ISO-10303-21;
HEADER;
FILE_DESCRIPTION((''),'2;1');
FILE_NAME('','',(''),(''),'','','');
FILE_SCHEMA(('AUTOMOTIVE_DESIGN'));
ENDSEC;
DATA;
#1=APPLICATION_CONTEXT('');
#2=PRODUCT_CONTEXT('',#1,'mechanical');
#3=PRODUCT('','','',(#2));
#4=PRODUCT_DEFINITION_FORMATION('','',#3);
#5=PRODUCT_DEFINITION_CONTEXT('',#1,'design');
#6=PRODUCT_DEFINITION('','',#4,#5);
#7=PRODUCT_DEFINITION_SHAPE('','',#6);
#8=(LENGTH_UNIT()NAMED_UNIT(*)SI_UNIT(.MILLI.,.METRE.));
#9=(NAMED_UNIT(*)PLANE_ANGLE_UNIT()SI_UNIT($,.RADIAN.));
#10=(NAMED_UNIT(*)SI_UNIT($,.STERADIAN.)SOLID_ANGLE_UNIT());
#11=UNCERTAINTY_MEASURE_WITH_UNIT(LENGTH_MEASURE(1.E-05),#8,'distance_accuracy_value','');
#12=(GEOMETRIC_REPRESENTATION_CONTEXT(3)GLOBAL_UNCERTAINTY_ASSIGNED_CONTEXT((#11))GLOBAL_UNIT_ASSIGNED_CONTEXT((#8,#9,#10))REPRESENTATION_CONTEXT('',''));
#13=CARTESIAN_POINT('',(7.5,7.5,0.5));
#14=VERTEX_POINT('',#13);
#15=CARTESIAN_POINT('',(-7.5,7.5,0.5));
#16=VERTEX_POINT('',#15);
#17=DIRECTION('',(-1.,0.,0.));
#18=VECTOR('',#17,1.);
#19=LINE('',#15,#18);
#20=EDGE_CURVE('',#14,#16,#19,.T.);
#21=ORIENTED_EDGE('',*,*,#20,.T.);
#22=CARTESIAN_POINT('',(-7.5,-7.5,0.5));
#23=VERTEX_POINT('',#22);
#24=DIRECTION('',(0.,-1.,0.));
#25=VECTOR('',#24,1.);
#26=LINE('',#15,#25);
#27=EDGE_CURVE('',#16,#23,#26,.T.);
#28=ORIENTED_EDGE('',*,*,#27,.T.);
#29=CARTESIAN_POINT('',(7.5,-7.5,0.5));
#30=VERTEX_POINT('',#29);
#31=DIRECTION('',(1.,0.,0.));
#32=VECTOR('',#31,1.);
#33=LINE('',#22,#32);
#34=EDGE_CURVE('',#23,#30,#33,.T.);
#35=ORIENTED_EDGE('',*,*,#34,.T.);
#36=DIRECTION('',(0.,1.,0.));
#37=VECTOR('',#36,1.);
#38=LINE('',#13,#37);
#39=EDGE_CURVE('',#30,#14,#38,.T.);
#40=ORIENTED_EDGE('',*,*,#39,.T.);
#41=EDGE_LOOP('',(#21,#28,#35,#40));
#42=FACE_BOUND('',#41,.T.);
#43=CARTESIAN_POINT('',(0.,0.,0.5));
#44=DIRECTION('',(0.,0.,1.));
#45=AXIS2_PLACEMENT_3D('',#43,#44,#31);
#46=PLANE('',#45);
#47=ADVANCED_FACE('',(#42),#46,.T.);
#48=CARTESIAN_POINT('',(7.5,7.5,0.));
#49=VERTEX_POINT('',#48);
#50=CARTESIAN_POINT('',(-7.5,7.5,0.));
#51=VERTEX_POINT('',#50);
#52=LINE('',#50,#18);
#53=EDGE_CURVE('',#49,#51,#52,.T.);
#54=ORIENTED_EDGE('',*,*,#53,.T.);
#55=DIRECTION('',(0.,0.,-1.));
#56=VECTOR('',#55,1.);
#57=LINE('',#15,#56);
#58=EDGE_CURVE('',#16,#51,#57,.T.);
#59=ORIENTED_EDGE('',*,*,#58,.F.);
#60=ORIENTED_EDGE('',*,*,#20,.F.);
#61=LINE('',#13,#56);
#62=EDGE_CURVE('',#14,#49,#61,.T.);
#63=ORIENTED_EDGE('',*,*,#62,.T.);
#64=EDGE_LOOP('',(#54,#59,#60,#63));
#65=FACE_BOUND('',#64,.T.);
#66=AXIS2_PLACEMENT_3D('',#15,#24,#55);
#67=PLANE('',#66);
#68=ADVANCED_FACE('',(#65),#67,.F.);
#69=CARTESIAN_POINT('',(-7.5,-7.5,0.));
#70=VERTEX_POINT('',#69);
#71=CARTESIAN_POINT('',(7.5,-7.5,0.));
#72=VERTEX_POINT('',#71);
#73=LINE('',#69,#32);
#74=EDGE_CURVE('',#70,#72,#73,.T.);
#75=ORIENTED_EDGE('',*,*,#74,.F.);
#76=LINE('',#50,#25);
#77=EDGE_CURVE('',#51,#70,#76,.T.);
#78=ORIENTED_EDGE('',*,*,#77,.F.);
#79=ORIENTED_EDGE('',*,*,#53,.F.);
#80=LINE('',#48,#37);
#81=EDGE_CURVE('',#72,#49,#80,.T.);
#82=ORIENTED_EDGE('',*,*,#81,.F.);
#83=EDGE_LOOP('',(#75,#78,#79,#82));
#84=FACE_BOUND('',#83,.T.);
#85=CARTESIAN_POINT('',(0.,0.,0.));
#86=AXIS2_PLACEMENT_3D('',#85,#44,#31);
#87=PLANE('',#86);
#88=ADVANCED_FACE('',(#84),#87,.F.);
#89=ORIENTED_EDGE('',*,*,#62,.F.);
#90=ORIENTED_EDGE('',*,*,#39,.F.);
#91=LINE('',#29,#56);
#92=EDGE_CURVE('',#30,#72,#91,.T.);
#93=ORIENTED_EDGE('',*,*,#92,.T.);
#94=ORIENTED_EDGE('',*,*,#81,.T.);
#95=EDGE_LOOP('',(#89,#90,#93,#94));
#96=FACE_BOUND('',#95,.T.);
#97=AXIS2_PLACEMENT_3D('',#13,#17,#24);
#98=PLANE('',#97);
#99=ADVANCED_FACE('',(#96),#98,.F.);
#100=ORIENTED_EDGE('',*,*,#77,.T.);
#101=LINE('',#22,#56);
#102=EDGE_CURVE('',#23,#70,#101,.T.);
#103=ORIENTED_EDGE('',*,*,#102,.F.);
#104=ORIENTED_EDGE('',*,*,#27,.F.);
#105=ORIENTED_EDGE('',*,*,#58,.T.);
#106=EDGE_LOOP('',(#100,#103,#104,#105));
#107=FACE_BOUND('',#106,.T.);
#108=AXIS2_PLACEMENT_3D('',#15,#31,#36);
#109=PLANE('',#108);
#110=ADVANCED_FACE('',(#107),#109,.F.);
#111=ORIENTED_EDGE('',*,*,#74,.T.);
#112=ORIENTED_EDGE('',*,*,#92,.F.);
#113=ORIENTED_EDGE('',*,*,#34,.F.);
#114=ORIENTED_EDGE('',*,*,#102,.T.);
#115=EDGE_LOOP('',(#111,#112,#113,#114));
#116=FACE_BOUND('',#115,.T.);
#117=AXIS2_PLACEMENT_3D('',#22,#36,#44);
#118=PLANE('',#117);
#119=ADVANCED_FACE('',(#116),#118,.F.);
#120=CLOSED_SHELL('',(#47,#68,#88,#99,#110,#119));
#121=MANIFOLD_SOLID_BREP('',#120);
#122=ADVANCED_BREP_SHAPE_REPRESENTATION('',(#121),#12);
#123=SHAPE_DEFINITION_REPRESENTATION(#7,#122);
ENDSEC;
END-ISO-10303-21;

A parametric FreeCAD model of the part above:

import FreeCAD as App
import Part
import Sketcher

V = App.Vector


def add_polygon(sketch, points):
    """Adds a closed chain of lines whose ends are joined by coincident constraints."""
    first, n = sketch.GeometryCount, len(points)
    for a, b in zip(points, points[1:] + points[:1]):
        sketch.addGeometry(Part.LineSegment(App.Vector(*a, 0), App.Vector(*b, 0)), False)
    for i in range(n):
        sketch.addConstraint(Sketcher.Constraint("Coincident", first + i, 2, first + (i + 1) % n, 1))

doc = App.newDocument("Part")
params = doc.addObject("Spreadsheet::Sheet", "Params")
for row, (alias, value) in enumerate([
    ("sketch1_width", "15 mm"),
    ("pad1_length", "0.5 mm"),
], start=1):
    params.set(f"A{row}", alias)
    params.set(f"B{row}", "=" + value)
    params.setAlias(f"B{row}", alias)

body = doc.addObject("PartDesign::Body", "Body")

# Sketch on XY plane
sketch1 = body.newObject("Sketcher::SketchObject", "Sketch")
sketch1.AttachmentSupport = (doc.getObject("XY_Plane"), [""])
sketch1.MapMode = "FlatFace"
add_polygon(sketch1, [(-8, 8), (-8, -8), (8, -8), (8, 8)])  # lines 0-3
sketch1.addConstraint([
    Sketcher.Constraint("Vertical", 0),
    Sketcher.Constraint("Horizontal", 1),
    Sketcher.Constraint("Vertical", 2),
    Sketcher.Constraint("Horizontal", 3),
    Sketcher.Constraint("Symmetric", 0, 2, 2, 2, -1, 1),
    Sketcher.Constraint("Equal", 3, 0),
    Sketcher.Constraint("DistanceX", 1, 1, 1, 2, 15.0),
])
sketch1.setExpression("Constraints[10]", "Params.sketch1_width")
pad1 = body.newObject("PartDesign::Pad", "Pad")
pad1.Profile = sketch1
pad1.setExpression("Length", "Params.pad1_length")

doc.recompute()
